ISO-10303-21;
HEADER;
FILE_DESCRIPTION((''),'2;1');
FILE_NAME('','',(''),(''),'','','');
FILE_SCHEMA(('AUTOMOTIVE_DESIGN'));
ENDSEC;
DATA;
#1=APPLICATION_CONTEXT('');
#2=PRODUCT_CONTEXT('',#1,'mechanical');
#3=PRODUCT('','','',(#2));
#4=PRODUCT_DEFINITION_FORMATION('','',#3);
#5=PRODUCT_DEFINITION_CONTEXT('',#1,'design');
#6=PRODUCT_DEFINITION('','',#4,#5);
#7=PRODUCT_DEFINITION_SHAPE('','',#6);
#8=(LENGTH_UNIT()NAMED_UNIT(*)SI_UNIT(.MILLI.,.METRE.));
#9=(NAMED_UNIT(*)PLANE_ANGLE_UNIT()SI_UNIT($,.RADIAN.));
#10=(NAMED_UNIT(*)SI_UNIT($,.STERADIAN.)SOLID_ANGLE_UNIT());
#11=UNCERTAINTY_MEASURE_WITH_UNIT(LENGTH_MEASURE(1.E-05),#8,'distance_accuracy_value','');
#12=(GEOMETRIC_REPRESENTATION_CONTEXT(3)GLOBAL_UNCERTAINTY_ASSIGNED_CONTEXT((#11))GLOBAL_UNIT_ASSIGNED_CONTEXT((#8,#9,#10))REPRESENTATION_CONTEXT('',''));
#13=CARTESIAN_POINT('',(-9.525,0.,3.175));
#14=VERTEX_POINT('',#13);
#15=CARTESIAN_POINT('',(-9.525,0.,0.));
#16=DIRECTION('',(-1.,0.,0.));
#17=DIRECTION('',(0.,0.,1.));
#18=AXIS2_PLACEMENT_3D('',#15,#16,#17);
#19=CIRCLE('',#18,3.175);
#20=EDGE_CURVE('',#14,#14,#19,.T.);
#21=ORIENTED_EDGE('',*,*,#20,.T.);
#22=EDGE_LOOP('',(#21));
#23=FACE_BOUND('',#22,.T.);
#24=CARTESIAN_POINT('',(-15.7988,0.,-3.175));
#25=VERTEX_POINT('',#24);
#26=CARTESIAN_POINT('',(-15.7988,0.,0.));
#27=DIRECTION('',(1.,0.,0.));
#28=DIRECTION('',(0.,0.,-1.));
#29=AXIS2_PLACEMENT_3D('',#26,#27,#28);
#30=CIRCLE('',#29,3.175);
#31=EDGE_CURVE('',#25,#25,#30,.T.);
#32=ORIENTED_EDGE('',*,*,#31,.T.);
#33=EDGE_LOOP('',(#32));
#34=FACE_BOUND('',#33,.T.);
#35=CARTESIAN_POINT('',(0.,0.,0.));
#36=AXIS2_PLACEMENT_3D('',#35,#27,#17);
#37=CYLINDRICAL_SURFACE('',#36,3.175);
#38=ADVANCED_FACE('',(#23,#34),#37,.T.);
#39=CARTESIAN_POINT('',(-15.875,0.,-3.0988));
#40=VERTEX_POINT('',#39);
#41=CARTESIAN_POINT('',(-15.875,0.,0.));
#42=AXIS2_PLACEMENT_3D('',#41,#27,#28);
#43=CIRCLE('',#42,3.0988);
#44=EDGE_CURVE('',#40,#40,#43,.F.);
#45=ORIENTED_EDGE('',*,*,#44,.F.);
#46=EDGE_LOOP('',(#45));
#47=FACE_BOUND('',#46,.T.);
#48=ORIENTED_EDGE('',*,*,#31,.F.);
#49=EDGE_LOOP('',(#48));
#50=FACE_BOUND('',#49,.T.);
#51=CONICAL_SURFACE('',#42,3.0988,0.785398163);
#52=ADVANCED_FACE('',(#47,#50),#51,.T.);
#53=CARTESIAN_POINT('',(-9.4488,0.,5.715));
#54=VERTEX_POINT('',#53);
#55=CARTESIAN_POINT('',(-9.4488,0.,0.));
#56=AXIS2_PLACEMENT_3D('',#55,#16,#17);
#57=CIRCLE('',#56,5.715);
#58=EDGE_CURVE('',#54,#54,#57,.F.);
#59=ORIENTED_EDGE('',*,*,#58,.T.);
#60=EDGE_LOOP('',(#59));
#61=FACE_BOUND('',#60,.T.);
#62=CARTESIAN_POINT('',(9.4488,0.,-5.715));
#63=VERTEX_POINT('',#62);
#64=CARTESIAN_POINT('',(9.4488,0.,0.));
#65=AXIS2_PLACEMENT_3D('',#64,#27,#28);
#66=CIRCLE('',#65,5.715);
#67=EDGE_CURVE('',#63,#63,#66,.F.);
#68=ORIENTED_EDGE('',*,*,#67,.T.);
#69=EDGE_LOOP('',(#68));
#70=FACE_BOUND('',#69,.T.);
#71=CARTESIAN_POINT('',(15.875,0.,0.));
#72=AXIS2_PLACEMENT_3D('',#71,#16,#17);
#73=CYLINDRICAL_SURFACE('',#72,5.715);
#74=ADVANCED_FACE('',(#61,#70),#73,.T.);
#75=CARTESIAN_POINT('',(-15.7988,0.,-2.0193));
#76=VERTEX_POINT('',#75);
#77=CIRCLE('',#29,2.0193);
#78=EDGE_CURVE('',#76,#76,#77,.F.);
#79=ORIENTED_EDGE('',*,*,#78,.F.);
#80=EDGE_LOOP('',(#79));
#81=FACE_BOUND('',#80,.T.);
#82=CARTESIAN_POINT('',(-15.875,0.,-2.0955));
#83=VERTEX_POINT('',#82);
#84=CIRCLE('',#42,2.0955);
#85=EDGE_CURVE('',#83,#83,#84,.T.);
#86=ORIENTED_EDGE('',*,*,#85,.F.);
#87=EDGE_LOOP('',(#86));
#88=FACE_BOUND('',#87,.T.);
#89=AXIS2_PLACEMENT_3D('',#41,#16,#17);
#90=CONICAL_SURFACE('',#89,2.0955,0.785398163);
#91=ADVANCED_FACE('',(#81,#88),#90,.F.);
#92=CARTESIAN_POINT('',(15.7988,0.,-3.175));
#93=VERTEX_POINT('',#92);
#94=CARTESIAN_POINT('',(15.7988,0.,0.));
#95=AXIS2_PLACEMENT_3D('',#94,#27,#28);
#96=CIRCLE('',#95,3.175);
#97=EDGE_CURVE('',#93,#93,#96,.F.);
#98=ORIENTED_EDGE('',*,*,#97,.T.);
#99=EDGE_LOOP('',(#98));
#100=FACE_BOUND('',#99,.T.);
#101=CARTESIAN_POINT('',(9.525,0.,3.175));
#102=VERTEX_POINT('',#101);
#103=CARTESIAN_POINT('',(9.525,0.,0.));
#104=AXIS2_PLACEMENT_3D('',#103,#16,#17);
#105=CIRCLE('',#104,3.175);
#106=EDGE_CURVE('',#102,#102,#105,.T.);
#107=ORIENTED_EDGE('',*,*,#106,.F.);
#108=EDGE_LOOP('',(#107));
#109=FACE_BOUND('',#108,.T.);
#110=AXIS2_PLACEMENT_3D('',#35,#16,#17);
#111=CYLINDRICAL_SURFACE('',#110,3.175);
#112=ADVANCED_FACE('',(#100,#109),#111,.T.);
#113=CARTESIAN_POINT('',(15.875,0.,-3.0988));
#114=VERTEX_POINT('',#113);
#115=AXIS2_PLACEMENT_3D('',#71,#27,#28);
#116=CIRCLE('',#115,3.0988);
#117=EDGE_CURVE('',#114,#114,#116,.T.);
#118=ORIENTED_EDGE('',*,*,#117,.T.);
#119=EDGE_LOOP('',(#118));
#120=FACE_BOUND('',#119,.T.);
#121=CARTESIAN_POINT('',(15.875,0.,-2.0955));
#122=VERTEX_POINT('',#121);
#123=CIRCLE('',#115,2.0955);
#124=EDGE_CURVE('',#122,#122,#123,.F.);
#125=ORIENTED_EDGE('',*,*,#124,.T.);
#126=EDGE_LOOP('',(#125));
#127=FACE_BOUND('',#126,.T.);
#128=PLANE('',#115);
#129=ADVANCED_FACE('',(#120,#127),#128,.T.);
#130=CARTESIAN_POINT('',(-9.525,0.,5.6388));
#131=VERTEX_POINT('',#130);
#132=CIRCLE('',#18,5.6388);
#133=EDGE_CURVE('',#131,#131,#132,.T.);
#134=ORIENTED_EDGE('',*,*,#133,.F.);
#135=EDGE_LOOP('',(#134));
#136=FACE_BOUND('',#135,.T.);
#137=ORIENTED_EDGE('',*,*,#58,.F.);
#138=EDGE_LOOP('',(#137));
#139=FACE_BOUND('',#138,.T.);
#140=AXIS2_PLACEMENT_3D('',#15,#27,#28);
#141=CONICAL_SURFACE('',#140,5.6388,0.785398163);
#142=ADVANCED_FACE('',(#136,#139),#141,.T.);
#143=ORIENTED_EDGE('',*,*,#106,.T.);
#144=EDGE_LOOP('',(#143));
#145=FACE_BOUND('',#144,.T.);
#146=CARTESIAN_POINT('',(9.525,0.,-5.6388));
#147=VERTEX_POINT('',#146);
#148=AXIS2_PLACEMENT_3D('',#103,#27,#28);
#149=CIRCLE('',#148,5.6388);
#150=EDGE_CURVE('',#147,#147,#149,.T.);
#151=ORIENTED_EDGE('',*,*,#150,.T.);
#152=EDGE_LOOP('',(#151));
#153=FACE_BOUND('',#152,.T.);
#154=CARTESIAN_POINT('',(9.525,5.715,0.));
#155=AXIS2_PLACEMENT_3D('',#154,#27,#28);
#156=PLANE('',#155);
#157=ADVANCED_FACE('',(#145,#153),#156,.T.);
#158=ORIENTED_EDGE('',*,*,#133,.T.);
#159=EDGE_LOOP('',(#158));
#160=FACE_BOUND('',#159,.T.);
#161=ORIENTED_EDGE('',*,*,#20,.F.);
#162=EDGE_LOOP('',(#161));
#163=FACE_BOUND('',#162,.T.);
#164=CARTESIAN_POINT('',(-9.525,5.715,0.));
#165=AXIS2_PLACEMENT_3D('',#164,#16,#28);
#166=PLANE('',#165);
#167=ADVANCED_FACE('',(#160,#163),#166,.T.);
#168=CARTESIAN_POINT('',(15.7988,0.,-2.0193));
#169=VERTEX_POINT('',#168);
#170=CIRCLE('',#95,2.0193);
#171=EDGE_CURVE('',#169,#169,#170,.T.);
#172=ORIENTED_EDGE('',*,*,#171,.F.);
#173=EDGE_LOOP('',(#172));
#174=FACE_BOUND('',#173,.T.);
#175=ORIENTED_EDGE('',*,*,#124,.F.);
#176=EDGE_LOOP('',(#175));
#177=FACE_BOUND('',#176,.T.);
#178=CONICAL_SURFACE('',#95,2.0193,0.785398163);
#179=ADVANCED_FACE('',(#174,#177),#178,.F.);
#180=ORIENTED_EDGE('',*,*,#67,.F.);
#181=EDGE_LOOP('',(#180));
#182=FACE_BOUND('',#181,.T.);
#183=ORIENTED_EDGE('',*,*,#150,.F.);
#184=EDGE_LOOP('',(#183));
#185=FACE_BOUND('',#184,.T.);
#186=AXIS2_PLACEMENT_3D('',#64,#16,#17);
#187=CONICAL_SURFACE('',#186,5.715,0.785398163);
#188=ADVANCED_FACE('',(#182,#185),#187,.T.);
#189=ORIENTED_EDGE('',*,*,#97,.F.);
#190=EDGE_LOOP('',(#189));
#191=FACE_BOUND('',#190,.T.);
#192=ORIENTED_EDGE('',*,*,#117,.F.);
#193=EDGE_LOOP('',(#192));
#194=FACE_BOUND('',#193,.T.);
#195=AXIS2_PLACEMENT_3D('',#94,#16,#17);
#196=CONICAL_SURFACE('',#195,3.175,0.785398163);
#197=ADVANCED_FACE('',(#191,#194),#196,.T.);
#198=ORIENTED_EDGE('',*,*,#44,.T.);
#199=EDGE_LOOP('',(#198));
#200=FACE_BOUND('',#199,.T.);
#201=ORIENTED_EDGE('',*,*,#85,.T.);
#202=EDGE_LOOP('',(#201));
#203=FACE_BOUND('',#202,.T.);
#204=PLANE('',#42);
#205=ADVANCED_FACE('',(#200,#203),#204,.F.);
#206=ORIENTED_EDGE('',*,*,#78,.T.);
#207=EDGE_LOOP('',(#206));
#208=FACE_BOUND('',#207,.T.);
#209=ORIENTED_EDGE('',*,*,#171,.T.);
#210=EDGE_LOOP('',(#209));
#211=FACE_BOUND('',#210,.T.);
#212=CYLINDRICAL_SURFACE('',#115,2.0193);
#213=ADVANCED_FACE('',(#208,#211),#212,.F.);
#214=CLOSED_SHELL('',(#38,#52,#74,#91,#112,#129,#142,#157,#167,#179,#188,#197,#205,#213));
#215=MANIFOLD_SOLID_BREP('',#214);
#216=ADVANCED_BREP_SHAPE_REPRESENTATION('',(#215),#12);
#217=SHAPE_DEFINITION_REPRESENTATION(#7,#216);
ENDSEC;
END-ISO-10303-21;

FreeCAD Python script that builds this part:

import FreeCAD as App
import Part
import Sketcher
Q = App.Units.Quantity


def edges_at(feature, points):
    """Names of the edges that pass closest to the given points."""
    edges = feature.Shape.Edges
    near = lambda p: min(range(len(edges)), key=lambda i: edges[i].distToShape(Part.Vertex(*p))[0])
    return sorted({f"Edge{near(p) + 1}" for p in points})

doc = App.newDocument("Part")
body = doc.addObject("PartDesign::Body", "Body")

# Sketch on YZ plane
sketch1 = body.newObject("Sketcher::SketchObject", "Sketch")
sketch1.AttachmentSupport = (doc.getObject("YZ_Plane"), [""])
sketch1.MapMode = "FlatFace"
sketch1.addGeometry(Part.Circle(App.Vector(0, 0, 0), App.Vector(0, 0, 1), 6), False)
sketch1.addConstraint([
    Sketcher.Constraint("Coincident", 0, 3, -1, 1),
    Sketcher.Constraint("Diameter", 0, Q("0.45 in")),
])
pad1 = body.newObject("PartDesign::Pad", "Pad")
pad1.Profile = sketch1
pad1.Length = Q("1.25 in")
pad1.Midplane = True

# Sketch on YZ plane
sketch2 = body.newObject("Sketcher::SketchObject", "Sketch001")
sketch2.AttachmentSupport = (doc.getObject("YZ_Plane"), [""])
sketch2.MapMode = "FlatFace"
sketch2.AttachmentOffset = App.Placement(App.Vector(0, 0, 0.625 * 25.4), App.Rotation())
sketch2.addGeometry(Part.Circle(App.Vector(0, 0, 0), App.Vector(0, 0, 1), 2), False)
sketch2.addConstraint([
    Sketcher.Constraint("Coincident", 0, 3, -1, 1),
    Sketcher.Constraint("Diameter", 0, Q("0.159 in")),
])
doc.recompute()
hole = body.newObject("PartDesign::Hole", "Hole")
hole.Profile = sketch2
hole.ThreadType = "None"
hole.Diameter = Q("0.159 in")
hole.DepthType = "ThroughAll"

# Sketch on XY plane
sketch3 = body.newObject("Sketcher::SketchObject", "Sketch002")
sketch3.AttachmentSupport = (doc.getObject("XY_Plane"), [""])
sketch3.MapMode = "FlatFace"
sketch3.addGeometry([
    Part.LineSegment(App.Vector(9.5, 5.7, 0), App.Vector(9.5, 3.2, 0)),
    Part.LineSegment(App.Vector(9.5, 3.2, 0), App.Vector(15.9, 3.2, 0)),
    Part.LineSegment(App.Vector(15.9, 3.2, 0), App.Vector(15.9, 5.7, 0)),
    Part.LineSegment(App.Vector(15.9, 5.7, 0), App.Vector(9.5, 5.7, 0)),
], False)
sketch3.addConstraint([
    Sketcher.Constraint("Coincident", 0, 2, 1, 1),
    Sketcher.Constraint("Coincident", 1, 2, 2, 1),
    Sketcher.Constraint("Coincident", 2, 2, 3, 1),
    Sketcher.Constraint("Coincident", 3, 2, 0, 1),
    Sketcher.Constraint("Vertical", 0),
    Sketcher.Constraint("Horizontal", 1),
    Sketcher.Constraint("Vertical", 2),
    Sketcher.Constraint("Horizontal", 3),
    Sketcher.Constraint("DistanceY", 0, 2, 0, 1, Q("0.1 in")),
    Sketcher.Constraint("DistanceX", 1, 1, 1, 2, Q("0.25 in")),
    Sketcher.Constraint("DistanceX", -1, 1, 0, 2, Q("0.375 in")),
    Sketcher.Constraint("DistanceY", -1, 1, 0, 2, Q("0.125 in")),
])
groove = body.newObject("PartDesign::Groove", "Groove")
groove.Profile = sketch3
groove.ReferenceAxis = (sketch3, ["H_Axis"])
groove.Angle = 360
doc.recompute()

chamfer = body.newObject("PartDesign::Chamfer", "Chamfer")
chamfer.Base = (groove, edges_at(groove, [(15.875, 0, -3.175), (9.525, 0, 5.715)]))
chamfer.Size = Q("0.003 in")
doc.recompute()

mirrored = body.newObject("PartDesign::Mirrored", "Mirrored")
mirrored.Originals = [groove]
mirrored.MirrorPlane = (doc.getObject("YZ_Plane"), [""])
body.Tip = mirrored
doc.recompute()

chamfer2 = body.newObject("PartDesign::Chamfer", "Chamfer001")
chamfer2.Base = (mirrored, edges_at(mirrored, [(-15.875, 0, -3.175), (-9.525, 0, 5.715)]))
chamfer2.Size = Q("0.003 in")
doc.recompute()

chamfer3 = body.newObject("PartDesign::Chamfer", "Chamfer002")
chamfer3.Base = (chamfer2, edges_at(chamfer2, [(15.875, 0, -2.019), (-15.875, 0, -2.019)]))
chamfer3.Size = Q("0.003 in")

doc.recompute()
